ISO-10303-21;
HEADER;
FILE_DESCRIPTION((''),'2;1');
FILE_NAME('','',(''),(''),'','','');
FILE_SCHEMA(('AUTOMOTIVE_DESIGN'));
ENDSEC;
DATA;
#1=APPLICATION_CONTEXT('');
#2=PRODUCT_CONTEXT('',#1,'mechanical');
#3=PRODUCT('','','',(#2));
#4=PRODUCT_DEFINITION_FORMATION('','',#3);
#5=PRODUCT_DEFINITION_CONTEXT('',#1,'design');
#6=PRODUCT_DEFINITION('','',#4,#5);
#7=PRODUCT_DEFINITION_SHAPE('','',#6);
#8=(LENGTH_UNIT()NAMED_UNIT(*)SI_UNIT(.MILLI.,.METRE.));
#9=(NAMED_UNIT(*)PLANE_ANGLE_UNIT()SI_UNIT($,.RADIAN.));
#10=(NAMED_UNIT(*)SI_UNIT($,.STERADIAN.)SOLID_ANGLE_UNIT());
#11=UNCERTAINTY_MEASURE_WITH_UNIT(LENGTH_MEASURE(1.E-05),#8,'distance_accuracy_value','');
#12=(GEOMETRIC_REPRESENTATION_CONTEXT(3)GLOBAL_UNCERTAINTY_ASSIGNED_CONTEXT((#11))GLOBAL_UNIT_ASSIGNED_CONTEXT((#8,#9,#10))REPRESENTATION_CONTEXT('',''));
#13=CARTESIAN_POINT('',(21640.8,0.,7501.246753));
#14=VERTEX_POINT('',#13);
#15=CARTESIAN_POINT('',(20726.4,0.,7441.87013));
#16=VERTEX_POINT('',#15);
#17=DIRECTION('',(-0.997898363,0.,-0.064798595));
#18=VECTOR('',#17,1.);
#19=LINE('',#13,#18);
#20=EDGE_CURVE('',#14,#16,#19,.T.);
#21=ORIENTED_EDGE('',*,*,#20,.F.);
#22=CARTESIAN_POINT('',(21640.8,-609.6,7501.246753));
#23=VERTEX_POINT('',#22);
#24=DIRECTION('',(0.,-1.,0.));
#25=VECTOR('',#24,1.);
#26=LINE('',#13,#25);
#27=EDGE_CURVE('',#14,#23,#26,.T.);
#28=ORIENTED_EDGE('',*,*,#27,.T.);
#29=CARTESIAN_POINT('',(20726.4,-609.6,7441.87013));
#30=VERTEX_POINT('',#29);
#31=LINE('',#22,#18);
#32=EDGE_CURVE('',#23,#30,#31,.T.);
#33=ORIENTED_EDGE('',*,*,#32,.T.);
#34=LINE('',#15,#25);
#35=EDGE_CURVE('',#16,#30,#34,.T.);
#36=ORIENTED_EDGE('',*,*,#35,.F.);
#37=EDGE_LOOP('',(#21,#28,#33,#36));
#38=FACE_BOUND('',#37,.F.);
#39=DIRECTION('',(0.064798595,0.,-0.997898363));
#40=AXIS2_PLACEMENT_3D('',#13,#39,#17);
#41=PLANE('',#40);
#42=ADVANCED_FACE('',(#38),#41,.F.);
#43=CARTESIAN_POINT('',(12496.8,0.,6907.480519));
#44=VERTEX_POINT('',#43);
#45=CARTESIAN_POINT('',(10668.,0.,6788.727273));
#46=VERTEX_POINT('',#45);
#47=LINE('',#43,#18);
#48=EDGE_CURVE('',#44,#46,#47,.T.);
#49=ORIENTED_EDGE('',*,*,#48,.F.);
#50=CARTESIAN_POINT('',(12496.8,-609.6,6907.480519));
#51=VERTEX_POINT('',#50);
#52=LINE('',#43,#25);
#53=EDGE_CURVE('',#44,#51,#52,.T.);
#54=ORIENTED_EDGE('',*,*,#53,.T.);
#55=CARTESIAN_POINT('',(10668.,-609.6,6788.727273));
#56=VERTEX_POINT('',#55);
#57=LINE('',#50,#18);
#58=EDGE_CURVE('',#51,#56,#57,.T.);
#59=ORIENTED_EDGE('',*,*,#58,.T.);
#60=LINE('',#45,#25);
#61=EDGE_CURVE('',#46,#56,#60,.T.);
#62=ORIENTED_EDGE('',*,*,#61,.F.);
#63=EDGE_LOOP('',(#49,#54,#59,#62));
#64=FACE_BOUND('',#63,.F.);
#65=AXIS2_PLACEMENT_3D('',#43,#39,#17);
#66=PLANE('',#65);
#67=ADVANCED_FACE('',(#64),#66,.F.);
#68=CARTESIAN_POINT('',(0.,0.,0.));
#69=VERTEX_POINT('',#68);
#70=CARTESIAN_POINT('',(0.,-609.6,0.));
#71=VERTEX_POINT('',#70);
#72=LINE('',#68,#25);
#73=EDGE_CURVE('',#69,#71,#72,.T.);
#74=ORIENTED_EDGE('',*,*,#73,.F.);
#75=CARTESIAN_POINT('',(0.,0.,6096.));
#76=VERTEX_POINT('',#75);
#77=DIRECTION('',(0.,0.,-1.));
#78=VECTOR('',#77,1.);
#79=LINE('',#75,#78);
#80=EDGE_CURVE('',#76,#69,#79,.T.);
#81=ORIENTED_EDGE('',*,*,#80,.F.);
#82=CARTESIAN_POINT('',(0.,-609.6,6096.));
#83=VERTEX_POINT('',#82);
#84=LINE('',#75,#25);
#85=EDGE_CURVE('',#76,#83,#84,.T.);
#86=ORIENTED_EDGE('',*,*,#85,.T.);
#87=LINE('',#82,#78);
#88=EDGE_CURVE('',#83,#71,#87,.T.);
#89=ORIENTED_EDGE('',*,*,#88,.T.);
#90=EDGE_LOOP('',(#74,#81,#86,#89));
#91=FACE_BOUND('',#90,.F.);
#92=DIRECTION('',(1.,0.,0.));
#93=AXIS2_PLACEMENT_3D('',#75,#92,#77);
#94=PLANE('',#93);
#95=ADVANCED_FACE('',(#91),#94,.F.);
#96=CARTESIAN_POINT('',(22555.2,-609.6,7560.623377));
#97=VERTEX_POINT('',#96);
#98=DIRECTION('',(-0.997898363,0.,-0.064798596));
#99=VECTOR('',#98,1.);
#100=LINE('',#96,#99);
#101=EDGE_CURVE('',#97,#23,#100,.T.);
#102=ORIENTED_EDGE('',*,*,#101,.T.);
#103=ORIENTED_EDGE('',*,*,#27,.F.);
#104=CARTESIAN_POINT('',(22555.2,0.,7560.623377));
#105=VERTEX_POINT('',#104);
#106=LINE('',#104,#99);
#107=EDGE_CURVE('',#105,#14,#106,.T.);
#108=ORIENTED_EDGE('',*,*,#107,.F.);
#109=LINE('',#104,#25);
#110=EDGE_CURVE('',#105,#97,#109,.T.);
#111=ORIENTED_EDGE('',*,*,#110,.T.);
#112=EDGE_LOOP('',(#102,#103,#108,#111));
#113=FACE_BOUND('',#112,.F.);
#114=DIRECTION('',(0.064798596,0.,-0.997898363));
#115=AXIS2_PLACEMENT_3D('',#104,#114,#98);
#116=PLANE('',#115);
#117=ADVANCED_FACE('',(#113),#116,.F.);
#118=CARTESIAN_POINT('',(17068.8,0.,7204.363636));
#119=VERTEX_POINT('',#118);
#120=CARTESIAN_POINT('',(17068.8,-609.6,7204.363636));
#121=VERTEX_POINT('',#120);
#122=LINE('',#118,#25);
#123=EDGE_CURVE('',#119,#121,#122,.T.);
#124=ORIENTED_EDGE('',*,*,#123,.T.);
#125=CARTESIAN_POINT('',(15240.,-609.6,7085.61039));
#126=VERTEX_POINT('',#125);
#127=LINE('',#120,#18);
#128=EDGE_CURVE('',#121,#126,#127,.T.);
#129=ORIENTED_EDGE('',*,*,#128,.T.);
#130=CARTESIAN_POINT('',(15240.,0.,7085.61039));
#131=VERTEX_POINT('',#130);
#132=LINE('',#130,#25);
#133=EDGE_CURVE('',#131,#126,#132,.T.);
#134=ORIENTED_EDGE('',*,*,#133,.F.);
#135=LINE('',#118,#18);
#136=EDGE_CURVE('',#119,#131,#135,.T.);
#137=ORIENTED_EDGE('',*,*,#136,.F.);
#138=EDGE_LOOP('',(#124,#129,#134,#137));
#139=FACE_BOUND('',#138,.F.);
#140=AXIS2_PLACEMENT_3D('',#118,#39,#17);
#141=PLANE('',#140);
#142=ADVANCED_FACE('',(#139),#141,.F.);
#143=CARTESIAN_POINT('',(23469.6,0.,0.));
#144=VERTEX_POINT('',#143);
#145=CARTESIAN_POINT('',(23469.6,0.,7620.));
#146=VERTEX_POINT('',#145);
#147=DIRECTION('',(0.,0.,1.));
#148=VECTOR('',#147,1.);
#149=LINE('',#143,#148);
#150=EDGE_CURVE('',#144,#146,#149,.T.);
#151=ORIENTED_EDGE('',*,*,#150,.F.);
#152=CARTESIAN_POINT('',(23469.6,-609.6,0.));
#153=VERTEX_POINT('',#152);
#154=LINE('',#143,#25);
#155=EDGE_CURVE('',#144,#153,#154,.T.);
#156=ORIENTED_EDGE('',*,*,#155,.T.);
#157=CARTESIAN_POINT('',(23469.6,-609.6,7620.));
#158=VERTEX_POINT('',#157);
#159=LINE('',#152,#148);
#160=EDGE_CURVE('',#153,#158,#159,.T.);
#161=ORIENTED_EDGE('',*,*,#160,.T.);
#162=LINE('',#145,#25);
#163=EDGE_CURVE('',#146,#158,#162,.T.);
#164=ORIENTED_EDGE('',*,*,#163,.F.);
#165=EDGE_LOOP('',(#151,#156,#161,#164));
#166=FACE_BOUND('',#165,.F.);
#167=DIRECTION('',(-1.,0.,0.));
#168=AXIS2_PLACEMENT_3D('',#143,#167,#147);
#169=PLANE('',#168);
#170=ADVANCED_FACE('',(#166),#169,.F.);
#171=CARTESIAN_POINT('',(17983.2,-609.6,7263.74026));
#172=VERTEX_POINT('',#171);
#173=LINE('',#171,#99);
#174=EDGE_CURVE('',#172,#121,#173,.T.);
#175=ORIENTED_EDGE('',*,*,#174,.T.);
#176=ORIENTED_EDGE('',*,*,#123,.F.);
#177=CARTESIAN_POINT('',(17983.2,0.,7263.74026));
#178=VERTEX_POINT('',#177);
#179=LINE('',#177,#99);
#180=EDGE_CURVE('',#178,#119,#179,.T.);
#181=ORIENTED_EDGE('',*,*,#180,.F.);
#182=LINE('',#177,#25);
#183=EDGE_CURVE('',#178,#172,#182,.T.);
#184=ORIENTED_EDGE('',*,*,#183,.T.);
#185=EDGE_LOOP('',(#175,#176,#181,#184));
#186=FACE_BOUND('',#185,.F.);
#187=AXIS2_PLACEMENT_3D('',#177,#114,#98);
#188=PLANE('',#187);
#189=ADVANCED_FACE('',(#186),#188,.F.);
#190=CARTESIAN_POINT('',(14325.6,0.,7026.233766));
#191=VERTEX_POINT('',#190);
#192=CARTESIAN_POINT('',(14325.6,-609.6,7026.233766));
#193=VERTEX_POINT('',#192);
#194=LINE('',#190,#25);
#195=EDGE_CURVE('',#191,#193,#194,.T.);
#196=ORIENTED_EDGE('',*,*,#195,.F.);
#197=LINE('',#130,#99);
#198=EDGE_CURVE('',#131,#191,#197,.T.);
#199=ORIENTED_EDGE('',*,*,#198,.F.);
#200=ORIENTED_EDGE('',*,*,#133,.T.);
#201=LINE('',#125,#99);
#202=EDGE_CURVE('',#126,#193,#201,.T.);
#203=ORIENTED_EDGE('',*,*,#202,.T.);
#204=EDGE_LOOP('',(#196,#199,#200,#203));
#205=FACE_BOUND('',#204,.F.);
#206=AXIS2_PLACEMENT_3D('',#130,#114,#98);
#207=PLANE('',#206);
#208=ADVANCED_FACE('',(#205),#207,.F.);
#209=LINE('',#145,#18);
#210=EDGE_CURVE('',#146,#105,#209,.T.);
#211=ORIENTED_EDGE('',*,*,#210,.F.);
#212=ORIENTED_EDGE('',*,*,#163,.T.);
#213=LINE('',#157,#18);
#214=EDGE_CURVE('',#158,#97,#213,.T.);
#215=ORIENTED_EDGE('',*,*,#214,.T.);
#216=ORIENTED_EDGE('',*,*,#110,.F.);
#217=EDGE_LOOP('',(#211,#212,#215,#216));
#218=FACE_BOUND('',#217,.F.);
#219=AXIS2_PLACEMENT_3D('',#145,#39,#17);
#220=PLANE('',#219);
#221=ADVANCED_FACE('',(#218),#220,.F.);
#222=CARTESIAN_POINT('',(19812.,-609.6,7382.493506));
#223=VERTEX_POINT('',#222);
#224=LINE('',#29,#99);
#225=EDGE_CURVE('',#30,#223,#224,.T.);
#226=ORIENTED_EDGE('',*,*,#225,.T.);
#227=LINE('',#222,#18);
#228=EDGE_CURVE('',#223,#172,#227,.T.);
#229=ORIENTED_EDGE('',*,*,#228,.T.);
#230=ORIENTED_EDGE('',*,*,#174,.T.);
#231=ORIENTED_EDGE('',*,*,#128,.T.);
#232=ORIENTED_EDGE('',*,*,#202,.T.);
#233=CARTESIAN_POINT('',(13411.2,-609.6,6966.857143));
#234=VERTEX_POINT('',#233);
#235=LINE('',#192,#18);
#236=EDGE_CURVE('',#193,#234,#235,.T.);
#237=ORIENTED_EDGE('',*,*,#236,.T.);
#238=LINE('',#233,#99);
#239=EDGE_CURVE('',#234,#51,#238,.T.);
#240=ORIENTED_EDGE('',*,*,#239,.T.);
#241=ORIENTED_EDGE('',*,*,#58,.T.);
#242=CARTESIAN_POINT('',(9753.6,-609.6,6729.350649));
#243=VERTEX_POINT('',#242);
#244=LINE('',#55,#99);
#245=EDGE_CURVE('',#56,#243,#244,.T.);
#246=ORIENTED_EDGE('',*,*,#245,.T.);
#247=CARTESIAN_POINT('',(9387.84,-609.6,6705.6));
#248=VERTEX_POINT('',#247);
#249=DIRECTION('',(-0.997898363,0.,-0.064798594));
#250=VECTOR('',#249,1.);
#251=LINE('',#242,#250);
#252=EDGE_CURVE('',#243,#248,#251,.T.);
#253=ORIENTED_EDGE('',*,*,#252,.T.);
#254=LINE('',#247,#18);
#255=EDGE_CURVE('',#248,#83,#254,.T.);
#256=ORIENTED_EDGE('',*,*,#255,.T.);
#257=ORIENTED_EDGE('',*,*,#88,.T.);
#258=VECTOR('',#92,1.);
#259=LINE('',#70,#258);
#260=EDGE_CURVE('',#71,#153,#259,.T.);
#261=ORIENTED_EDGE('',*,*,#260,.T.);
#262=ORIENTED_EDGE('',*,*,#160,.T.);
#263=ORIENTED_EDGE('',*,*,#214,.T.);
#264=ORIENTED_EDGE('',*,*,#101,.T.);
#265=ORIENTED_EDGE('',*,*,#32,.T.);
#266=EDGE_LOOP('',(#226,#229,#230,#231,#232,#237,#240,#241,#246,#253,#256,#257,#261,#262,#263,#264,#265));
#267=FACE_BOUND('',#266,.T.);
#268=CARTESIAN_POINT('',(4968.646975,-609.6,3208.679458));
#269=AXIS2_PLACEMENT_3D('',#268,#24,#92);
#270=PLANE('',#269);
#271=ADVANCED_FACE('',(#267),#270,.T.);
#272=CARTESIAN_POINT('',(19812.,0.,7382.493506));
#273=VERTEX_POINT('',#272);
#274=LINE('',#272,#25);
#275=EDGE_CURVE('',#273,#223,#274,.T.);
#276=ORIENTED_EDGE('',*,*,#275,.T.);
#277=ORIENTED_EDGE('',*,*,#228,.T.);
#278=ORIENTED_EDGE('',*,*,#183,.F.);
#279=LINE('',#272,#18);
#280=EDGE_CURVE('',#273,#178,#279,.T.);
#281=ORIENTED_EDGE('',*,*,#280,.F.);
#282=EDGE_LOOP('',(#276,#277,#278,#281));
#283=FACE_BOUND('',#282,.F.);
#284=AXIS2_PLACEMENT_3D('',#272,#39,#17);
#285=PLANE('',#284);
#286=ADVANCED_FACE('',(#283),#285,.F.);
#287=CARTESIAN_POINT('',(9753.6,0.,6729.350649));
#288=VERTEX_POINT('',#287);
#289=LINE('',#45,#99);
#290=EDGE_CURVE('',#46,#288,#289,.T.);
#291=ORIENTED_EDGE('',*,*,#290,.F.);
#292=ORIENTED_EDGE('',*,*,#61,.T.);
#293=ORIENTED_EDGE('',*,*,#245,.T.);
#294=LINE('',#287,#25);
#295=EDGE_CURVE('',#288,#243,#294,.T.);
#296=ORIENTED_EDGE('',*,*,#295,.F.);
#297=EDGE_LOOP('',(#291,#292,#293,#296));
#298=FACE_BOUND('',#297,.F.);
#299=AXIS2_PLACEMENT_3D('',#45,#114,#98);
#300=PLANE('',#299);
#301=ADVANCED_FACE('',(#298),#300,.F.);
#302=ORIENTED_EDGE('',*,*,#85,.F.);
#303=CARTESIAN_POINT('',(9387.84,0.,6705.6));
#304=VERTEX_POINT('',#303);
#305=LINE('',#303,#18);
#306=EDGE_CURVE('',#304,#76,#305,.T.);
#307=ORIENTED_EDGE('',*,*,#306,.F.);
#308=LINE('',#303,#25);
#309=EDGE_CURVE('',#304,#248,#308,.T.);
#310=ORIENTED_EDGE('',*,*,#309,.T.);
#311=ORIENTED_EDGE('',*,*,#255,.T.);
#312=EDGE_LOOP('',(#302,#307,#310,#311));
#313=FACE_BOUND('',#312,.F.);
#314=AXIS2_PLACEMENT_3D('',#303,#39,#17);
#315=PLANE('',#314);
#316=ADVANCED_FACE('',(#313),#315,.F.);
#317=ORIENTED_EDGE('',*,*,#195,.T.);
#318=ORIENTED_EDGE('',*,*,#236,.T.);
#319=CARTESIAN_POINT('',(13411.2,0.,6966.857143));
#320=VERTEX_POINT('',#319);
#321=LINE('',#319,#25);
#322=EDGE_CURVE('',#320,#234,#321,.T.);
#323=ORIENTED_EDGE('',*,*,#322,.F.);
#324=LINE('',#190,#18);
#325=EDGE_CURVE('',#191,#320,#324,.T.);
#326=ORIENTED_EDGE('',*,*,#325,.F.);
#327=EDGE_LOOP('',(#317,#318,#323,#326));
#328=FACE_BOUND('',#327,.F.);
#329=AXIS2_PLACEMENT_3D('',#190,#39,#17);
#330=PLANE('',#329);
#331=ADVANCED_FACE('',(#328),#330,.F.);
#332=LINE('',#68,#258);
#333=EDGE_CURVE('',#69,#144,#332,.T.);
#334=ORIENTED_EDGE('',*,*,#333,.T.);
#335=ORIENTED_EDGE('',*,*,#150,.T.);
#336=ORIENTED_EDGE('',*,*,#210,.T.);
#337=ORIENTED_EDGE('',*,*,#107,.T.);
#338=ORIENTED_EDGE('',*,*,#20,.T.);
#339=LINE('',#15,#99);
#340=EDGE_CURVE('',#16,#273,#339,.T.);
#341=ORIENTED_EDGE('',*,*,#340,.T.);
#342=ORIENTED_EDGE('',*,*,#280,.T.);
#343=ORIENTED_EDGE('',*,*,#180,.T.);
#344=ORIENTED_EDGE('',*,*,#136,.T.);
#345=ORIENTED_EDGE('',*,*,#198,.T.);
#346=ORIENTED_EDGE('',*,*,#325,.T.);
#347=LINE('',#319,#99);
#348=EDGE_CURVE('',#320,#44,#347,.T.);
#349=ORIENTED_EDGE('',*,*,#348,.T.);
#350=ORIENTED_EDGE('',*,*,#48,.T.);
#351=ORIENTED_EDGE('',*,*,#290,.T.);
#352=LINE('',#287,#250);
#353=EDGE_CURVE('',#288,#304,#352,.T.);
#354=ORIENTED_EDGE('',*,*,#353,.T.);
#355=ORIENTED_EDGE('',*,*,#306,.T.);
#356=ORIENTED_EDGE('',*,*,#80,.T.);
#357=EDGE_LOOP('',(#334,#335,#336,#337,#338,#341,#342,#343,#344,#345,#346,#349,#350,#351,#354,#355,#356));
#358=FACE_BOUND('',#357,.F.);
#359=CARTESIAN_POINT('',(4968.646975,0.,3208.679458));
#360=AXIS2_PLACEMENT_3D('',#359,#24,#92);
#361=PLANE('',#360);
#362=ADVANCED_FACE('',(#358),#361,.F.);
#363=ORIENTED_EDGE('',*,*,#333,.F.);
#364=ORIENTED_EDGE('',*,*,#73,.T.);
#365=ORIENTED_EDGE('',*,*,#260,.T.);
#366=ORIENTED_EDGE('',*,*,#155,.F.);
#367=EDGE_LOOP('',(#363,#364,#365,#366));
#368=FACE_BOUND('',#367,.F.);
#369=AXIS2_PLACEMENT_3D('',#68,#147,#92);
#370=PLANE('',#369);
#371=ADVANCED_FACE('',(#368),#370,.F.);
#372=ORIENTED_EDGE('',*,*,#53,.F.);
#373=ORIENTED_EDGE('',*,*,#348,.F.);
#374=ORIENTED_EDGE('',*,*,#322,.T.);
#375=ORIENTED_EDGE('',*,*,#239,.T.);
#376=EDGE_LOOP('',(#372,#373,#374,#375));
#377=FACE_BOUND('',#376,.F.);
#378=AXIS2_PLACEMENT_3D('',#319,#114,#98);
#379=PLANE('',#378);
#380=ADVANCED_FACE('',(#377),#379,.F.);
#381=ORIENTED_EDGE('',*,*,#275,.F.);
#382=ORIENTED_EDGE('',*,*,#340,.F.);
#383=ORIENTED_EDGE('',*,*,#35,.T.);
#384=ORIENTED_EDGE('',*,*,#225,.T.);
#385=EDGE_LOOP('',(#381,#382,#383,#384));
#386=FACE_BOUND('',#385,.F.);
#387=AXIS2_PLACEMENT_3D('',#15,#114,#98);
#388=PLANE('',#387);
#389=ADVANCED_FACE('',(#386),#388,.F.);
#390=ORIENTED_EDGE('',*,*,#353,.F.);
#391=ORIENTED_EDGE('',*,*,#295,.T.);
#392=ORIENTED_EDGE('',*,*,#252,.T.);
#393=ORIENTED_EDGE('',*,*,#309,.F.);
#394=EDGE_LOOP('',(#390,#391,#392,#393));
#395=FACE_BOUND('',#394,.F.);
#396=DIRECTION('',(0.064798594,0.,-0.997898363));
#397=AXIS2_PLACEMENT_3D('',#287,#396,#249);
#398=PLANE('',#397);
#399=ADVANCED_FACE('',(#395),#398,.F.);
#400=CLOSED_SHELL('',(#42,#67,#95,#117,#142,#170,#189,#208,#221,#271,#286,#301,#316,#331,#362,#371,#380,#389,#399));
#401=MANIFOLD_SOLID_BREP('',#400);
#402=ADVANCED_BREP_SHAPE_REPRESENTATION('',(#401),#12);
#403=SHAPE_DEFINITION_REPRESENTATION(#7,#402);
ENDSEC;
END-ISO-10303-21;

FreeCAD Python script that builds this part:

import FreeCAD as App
import Part
import Sketcher
from FreeCAD import Vector
Q = App.Units.Quantity

doc = App.newDocument("Part")
body = doc.addObject("PartDesign::Body", "Body")

sketch1 = body.newObject("Sketcher::SketchObject", "Sketch")
sketch1.AttachmentSupport = (doc.getObject("XZ_Plane"), [""])
sketch1.MapMode = "FlatFace"
sketch1.addGeometry(Part.LineSegment(Vector(0, 6096, 0), Vector(0, 0, 0)), False)
sketch1.addGeometry(Part.LineSegment(Vector(0, 0, 0), Vector(23470, 0, 0)), False)
sketch1.addGeometry(Part.LineSegment(Vector(23470, 0, 0), Vector(23470, 7620, 0)), False)
sketch1.addGeometry(Part.LineSegment(Vector(23470, 7620, 0), Vector(22555, 7561, 0)), False)
sketch1.addGeometry(Part.LineSegment(Vector(22555, 7561, 0), Vector(21641, 7501, 0)), False)
sketch1.addGeometry(Part.LineSegment(Vector(21641, 7501, 0), Vector(20726, 7442, 0)), False)
sketch1.addGeometry(Part.LineSegment(Vector(20726, 7442, 0), Vector(19812, 7382, 0)), False)
sketch1.addGeometry(Part.LineSegment(Vector(19812, 7382, 0), Vector(17983, 7264, 0)), False)
sketch1.addGeometry(Part.LineSegment(Vector(17983, 7264, 0), Vector(17069, 7204, 0)), False)
sketch1.addGeometry(Part.LineSegment(Vector(17069, 7204, 0), Vector(15240, 7086, 0)), False)
sketch1.addGeometry(Part.LineSegment(Vector(15240, 7086, 0), Vector(14326, 7026, 0)), False)
sketch1.addGeometry(Part.LineSegment(Vector(14326, 7026, 0), Vector(13411, 6967, 0)), False)
sketch1.addGeometry(Part.LineSegment(Vector(13411, 6967, 0), Vector(12497, 6907, 0)), False)
sketch1.addGeometry(Part.LineSegment(Vector(12497, 6907, 0), Vector(10668, 6789, 0)), False)
sketch1.addGeometry(Part.LineSegment(Vector(10668, 6789, 0), Vector(9754, 6729, 0)), False)
sketch1.addGeometry(Part.LineSegment(Vector(9754, 6729, 0), Vector(9388, 6706, 0)), False)
sketch1.addGeometry(Part.LineSegment(Vector(9388, 6706, 0), Vector(0, 6096, 0)), False)
sketch1.addConstraint(Sketcher.Constraint("Coincident", 0, 2, 1, 1))
sketch1.addConstraint(Sketcher.Constraint("Coincident", 1, 2, 2, 1))
sketch1.addConstraint(Sketcher.Constraint("Coincident", 2, 2, 3, 1))
sketch1.addConstraint(Sketcher.Constraint("Coincident", 3, 2, 4, 1))
sketch1.addConstraint(Sketcher.Constraint("Coincident", 4, 2, 5, 1))
sketch1.addConstraint(Sketcher.Constraint("Coincident", 5, 2, 6, 1))
sketch1.addConstraint(Sketcher.Constraint("Coincident", 6, 2, 7, 1))
sketch1.addConstraint(Sketcher.Constraint("Coincident", 7, 2, 8, 1))
sketch1.addConstraint(Sketcher.Constraint("Coincident", 8, 2, 9, 1))
sketch1.addConstraint(Sketcher.Constraint("Coincident", 9, 2, 10, 1))
sketch1.addConstraint(Sketcher.Constraint("Coincident", 10, 2, 11, 1))
sketch1.addConstraint(Sketcher.Constraint("Coincident", 11, 2, 12, 1))
sketch1.addConstraint(Sketcher.Constraint("Coincident", 12, 2, 13, 1))
sketch1.addConstraint(Sketcher.Constraint("Coincident", 13, 2, 14, 1))
sketch1.addConstraint(Sketcher.Constraint("Coincident", 14, 2, 15, 1))
sketch1.addConstraint(Sketcher.Constraint("Coincident", 15, 2, 16, 1))
sketch1.addConstraint(Sketcher.Constraint("Coincident", 16, 2, 0, 1))
sketch1.addConstraint(Sketcher.Constraint("Vertical", 0))
sketch1.addConstraint(Sketcher.Constraint("Horizontal", 1))
sketch1.addConstraint(Sketcher.Constraint("Vertical", 2))
sketch1.addConstraint(Sketcher.Constraint("Coincident", 0, 2, -1, 1))
sketch1.addConstraint(Sketcher.Constraint("Parallel", 3, 4))
sketch1.addConstraint(Sketcher.Constraint("Parallel", 4, 5))
sketch1.addConstraint(Sketcher.Constraint("Parallel", 5, 6))
sketch1.addConstraint(Sketcher.Constraint("Parallel", 6, 7))
sketch1.addConstraint(Sketcher.Constraint("Parallel", 7, 8))
sketch1.addConstraint(Sketcher.Constraint("Parallel", 8, 9))
sketch1.addConstraint(Sketcher.Constraint("Parallel", 9, 10))
sketch1.addConstraint(Sketcher.Constraint("Parallel", 10, 11))
sketch1.addConstraint(Sketcher.Constraint("Parallel", 11, 12))
sketch1.addConstraint(Sketcher.Constraint("Parallel", 12, 13))
sketch1.addConstraint(Sketcher.Constraint("Parallel", 13, 14))
sketch1.addConstraint(Sketcher.Constraint("Parallel", 14, 15))
sketch1.addConstraint(Sketcher.Constraint("Parallel", 15, 16))
sketch1.addConstraint(Sketcher.Constraint("Equal", 3, 4))
sketch1.addConstraint(Sketcher.Constraint("Equal", 4, 5))
sketch1.addConstraint(Sketcher.Constraint("Equal", 5, 6))
sketch1.addConstraint(Sketcher.Constraint("Equal", 6, 8))
sketch1.addConstraint(Sketcher.Constraint("Equal", 7, 9))
sketch1.addConstraint(Sketcher.Constraint("Equal", 8, 10))
sketch1.addConstraint(Sketcher.Constraint("Equal", 10, 11))
sketch1.addConstraint(Sketcher.Constraint("Equal", 11, 12))
sketch1.addConstraint(Sketcher.Constraint("Equal", 9, 13))
sketch1.addConstraint(Sketcher.Constraint("Equal", 12, 14))
sketch1.addConstraint(Sketcher.Constraint("DistanceX", 1, 1, 1, 2, Q("924 in")))
sketch1.addConstraint(Sketcher.Constraint("DistanceY", 0, 2, 0, 1, Q("240 in")))
sketch1.addConstraint(Sketcher.Constraint("DistanceY", 2, 1, 2, 2, Q("300 in")))
sketch1.addConstraint(Sketcher.Constraint("DistanceX", -1, 1, 3, 2, Q("888 in")))
sketch1.addConstraint(Sketcher.Constraint("DistanceX", -1, 1, 7, 2, Q("708 in")))
sketch1.addConstraint(Sketcher.Constraint("DistanceY", -1, 1, 15, 2, Q("264 in")))
pad1 = body.newObject("PartDesign::Pad", "Pad")
pad1.Profile = sketch1
pad1.Length = Q("24 in")

doc.recompute()
